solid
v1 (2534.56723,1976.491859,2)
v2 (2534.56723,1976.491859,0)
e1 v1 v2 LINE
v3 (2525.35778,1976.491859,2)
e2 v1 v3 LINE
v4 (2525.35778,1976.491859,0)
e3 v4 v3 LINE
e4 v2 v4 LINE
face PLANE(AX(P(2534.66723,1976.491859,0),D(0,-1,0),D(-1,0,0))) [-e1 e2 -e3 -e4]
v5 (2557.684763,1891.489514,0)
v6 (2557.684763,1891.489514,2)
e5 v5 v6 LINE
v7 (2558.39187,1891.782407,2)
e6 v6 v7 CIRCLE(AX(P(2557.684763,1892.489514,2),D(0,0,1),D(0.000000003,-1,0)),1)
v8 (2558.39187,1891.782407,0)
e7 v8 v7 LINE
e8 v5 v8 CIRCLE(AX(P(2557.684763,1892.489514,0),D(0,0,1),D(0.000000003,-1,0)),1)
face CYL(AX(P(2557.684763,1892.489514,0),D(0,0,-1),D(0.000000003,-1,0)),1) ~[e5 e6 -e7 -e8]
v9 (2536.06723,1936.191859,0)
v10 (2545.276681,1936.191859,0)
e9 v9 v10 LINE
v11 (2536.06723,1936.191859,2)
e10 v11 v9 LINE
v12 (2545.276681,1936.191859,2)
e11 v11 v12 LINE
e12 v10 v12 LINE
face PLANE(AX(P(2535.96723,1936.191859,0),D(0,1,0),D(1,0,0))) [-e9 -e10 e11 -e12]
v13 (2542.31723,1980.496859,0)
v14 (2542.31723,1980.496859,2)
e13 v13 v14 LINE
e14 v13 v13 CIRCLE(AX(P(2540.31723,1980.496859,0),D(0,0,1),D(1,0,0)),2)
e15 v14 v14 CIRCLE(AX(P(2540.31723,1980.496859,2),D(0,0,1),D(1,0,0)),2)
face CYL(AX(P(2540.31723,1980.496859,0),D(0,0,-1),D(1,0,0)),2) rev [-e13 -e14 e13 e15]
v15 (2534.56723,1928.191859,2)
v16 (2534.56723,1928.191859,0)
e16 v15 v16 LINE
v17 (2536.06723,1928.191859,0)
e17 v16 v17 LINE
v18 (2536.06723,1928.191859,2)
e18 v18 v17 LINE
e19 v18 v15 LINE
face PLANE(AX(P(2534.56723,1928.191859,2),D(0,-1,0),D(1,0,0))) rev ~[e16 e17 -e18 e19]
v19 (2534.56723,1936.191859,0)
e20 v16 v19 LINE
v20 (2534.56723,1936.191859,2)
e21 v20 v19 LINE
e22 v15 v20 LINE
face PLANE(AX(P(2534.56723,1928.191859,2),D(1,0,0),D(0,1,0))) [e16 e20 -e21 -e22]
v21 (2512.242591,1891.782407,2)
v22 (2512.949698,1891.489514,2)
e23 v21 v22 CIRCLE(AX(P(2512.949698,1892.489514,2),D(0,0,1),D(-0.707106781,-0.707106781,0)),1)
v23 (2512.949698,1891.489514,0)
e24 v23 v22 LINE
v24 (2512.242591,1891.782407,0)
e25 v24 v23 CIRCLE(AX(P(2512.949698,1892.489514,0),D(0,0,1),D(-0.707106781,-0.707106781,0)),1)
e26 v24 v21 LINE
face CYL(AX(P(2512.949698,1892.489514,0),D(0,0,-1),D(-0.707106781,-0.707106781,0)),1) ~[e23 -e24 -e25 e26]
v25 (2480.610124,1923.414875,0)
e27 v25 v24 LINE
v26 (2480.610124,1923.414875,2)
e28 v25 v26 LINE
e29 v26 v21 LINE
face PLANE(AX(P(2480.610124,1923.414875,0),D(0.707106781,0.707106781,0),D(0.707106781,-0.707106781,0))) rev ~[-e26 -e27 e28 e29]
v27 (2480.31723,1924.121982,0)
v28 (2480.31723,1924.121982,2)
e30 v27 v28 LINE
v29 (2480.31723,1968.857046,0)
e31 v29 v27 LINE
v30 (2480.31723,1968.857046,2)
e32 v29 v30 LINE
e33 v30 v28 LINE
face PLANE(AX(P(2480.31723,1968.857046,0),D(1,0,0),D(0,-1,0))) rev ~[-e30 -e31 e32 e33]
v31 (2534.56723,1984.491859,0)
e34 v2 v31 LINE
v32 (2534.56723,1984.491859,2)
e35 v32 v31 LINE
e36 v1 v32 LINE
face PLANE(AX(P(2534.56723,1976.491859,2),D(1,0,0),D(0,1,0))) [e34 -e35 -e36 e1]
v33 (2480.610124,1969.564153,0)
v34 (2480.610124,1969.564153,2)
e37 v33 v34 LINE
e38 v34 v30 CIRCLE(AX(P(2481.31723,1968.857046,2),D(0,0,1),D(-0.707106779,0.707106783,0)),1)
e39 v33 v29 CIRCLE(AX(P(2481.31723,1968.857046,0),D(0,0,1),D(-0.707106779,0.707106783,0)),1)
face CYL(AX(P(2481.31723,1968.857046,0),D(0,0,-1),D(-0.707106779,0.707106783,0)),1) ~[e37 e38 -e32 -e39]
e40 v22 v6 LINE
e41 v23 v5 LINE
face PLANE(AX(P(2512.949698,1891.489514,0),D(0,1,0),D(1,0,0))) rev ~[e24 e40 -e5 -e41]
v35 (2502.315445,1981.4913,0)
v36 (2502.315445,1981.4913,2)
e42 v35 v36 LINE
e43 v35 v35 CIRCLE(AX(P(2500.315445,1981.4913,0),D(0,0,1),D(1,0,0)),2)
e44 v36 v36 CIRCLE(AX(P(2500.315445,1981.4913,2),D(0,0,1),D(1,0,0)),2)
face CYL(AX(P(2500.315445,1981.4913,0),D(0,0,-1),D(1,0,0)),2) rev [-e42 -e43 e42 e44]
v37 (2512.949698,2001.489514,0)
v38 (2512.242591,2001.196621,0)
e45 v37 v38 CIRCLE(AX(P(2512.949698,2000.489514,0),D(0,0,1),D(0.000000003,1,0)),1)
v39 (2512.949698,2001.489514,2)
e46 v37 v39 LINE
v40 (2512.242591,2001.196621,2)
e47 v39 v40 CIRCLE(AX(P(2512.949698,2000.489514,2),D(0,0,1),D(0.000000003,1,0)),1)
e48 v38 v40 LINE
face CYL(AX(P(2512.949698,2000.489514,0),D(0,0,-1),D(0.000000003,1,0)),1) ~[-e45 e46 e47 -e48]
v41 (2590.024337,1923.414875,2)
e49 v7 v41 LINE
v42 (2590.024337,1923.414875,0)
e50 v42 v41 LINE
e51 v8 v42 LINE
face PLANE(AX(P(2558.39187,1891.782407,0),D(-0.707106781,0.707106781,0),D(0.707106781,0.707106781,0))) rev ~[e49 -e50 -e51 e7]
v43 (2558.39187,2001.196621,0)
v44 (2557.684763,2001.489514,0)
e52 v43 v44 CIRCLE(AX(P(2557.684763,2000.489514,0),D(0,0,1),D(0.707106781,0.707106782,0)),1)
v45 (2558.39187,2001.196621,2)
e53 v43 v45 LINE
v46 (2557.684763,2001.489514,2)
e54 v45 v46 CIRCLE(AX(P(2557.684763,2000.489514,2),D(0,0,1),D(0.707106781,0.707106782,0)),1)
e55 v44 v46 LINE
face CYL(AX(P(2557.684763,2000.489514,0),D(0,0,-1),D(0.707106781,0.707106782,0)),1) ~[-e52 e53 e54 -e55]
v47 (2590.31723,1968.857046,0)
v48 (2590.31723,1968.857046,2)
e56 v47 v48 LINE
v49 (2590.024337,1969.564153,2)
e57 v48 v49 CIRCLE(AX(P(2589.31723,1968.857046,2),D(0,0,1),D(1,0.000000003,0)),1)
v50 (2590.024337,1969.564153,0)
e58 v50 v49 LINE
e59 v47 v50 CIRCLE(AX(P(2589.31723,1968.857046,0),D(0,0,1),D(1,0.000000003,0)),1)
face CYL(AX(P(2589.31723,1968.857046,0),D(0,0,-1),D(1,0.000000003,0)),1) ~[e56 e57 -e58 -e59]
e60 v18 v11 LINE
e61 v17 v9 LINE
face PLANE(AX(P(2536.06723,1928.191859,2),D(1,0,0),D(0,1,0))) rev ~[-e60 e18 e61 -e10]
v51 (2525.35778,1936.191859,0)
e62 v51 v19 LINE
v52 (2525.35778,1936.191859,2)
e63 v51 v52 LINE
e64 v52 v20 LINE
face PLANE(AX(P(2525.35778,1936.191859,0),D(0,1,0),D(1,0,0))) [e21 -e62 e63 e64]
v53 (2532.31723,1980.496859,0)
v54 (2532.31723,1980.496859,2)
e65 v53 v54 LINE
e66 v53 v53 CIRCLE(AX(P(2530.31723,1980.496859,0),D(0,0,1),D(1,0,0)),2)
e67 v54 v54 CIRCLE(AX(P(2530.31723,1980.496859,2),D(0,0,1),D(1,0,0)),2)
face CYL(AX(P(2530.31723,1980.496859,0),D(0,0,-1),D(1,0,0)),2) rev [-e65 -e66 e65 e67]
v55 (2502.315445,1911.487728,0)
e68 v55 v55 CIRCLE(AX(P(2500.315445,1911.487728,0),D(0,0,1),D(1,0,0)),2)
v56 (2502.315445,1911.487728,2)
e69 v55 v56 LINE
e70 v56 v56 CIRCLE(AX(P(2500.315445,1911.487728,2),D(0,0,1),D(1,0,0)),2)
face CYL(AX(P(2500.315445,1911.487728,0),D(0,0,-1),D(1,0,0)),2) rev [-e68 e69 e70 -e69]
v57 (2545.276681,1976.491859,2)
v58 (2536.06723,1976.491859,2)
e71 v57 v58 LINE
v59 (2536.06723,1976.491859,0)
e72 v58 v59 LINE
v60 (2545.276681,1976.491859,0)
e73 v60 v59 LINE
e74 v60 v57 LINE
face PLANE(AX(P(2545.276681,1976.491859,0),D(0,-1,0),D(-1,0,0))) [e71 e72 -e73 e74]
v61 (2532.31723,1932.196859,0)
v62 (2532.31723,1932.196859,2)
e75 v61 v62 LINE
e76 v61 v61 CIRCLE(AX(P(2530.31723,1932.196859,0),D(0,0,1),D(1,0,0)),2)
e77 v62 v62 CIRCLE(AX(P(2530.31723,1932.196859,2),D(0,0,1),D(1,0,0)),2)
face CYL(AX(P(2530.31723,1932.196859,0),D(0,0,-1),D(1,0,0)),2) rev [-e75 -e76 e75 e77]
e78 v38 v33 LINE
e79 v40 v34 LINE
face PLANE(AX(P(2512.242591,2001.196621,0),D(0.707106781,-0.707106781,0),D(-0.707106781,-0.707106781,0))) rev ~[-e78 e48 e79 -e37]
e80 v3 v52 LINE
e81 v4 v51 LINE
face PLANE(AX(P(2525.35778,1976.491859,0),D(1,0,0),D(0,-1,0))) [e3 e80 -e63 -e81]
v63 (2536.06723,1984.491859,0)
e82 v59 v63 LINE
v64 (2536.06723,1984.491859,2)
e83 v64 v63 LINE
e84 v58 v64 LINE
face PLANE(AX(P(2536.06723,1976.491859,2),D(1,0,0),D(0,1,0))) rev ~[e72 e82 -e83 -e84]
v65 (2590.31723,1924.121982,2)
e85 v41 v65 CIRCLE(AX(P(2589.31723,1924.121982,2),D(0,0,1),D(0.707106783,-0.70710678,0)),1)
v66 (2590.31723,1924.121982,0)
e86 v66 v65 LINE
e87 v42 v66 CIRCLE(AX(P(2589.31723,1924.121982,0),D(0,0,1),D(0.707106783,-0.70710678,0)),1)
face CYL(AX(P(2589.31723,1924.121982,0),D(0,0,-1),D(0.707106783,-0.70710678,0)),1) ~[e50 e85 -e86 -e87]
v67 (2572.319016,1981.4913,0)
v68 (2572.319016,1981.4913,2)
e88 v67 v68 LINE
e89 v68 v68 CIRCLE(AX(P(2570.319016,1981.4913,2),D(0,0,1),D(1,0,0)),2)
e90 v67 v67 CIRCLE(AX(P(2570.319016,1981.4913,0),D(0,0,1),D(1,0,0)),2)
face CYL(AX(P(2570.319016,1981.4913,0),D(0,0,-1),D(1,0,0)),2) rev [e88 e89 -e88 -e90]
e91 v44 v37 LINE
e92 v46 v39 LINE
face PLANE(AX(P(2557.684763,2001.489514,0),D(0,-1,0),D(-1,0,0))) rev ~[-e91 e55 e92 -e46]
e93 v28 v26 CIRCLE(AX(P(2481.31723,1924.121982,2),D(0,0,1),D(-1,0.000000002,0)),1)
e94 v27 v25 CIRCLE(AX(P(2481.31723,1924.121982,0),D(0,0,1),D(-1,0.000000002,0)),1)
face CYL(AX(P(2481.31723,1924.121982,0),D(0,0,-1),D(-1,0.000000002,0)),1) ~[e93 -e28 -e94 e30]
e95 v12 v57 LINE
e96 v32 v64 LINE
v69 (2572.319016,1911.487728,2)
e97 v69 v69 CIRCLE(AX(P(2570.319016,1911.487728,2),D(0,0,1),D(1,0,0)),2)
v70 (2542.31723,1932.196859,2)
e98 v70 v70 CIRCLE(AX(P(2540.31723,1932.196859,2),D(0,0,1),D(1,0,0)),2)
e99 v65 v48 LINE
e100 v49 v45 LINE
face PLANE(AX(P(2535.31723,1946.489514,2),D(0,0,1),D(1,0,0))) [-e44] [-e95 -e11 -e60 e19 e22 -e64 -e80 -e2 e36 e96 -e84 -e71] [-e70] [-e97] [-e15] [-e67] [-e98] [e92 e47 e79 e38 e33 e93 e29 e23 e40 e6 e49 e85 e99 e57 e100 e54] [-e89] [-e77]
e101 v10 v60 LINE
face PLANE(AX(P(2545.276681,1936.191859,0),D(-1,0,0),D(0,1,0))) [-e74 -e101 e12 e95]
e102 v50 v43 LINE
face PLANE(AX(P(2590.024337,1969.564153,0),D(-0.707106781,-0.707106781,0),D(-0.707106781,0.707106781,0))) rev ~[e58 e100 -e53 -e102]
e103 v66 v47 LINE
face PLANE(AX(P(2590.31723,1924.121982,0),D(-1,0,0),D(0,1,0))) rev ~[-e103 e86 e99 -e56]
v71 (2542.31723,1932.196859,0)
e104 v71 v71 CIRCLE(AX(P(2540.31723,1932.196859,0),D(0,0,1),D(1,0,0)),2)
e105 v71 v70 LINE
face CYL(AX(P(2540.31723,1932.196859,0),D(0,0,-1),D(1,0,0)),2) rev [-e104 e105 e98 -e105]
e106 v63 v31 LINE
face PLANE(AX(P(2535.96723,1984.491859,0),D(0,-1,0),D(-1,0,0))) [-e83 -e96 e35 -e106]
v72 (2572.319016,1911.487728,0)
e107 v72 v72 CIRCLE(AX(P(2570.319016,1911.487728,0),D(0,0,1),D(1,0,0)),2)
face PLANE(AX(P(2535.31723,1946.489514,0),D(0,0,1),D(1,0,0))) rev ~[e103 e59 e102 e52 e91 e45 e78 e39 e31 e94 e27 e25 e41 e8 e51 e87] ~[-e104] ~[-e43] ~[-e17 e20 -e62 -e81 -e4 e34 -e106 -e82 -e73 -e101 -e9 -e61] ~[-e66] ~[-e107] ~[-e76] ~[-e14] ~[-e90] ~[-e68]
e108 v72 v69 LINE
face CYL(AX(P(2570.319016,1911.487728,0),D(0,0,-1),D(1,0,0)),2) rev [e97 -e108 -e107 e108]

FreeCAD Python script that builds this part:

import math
import FreeCAD as App
import Part
import Sketcher

V = App.Vector
Q = App.Units.Quantity


def add_polygon(sketch, points):
    """Adds a closed chain of lines whose ends are joined by coincident constraints."""
    first, n = sketch.GeometryCount, len(points)
    for a, b in zip(points, points[1:] + points[:1]):
        sketch.addGeometry(Part.LineSegment(App.Vector(*a, 0), App.Vector(*b, 0)), False)
    for i in range(n):
        sketch.addConstraint(Sketcher.Constraint("Coincident", first + i, 2, first + (i + 1) % n, 1))

doc = App.newDocument("Part")
body = doc.addObject("PartDesign::Body", "Body")

# Sketch on XY plane
sketch1 = doc.addObject("Sketcher::SketchObject", "Sketch")
body.addObject(sketch1)
sketch1.AttachmentSupport = (doc.XY_Plane, [""])
sketch1.MapMode = "FlatFace"
sketch1.addGeometry(Part.LineSegment(V(2557.7, 2001.5, 0), V(2512.9, 2001.5, 0)), False)  # 0
sketch1.addGeometry(Part.ArcOfCircle(Part.Circle(V(2512.9, 2000.5, 0), V(0, 0, 1), 1), math.radians(90), math.radians(135)), False)  # 1
sketch1.addGeometry(Part.LineSegment(V(2512.2, 2001.2, 0), V(2480.6, 1969.6, 0)), False)  # 2
sketch1.addGeometry(Part.ArcOfCircle(Part.Circle(V(2481.3, 1968.9, 0), V(0, 0, 1), 1), math.radians(135), math.radians(180)), False)  # 3
sketch1.addGeometry(Part.LineSegment(V(2480.3, 1968.9, 0), V(2480.3, 1924.1, 0)), False)  # 4
sketch1.addGeometry(Part.ArcOfCircle(Part.Circle(V(2481.3, 1924.1, 0), V(0, 0, 1), 1), math.radians(180), math.radians(225)), False)  # 5
sketch1.addGeometry(Part.LineSegment(V(2480.6, 1923.4, 0), V(2512.2, 1891.8, 0)), False)  # 6
sketch1.addGeometry(Part.ArcOfCircle(Part.Circle(V(2512.9, 1892.5, 0), V(0, 0, 1), 1), math.radians(-135), math.radians(-90)), False)  # 7
sketch1.addGeometry(Part.LineSegment(V(2512.9, 1891.5, 0), V(2557.7, 1891.5, 0)), False)  # 8
sketch1.addGeometry(Part.ArcOfCircle(Part.Circle(V(2557.7, 1892.5, 0), V(0, 0, 1), 1), math.radians(-90), math.radians(-45)), False)  # 9
sketch1.addGeometry(Part.LineSegment(V(2558.4, 1891.8, 0), V(2590, 1923.4, 0)), False)  # 10
sketch1.addGeometry(Part.ArcOfCircle(Part.Circle(V(2589.3, 1924.1, 0), V(0, 0, 1), 1), math.radians(-45), math.radians(0)), False)  # 11
sketch1.addGeometry(Part.LineSegment(V(2590.3, 1924.1, 0), V(2590.3, 1968.9, 0)), False)  # 12
sketch1.addGeometry(Part.ArcOfCircle(Part.Circle(V(2589.3, 1968.9, 0), V(0, 0, 1), 1), math.radians(0), math.radians(45)), False)  # 13
sketch1.addGeometry(Part.LineSegment(V(2590, 1969.6, 0), V(2558.4, 2001.2, 0)), False)  # 14
sketch1.addGeometry(Part.ArcOfCircle(Part.Circle(V(2557.7, 2000.5, 0), V(0, 0, 1), 1), math.radians(45), math.radians(90)), False)  # 15
sketch1.addGeometry(Part.Circle(V(2500.3, 1911.5, 0), V(0, 0, 1), 2), False)  # 16
sketch1.addGeometry(Part.Circle(V(2530.3, 1932.2, 0), V(0, 0, 1), 2), False)  # 17
sketch1.addGeometry(Part.Circle(V(2570.3, 1911.5, 0), V(0, 0, 1), 2), False)  # 18
sketch1.addGeometry(Part.Circle(V(2540.3, 1932.2, 0), V(0, 0, 1), 2), False)  # 19
sketch1.addGeometry(Part.Circle(V(2500.3, 1981.5, 0), V(0, 0, 1), 2), False)  # 20
sketch1.addGeometry(Part.Circle(V(2530.3, 1980.5, 0), V(0, 0, 1), 2), False)  # 21
add_polygon(sketch1, [(2536, 1984.5), (2536, 1976.5), (2545.3, 1976.5), (2545.3, 1936.2), (2536, 1936.2), (2536, 1928.2), (2534.7, 1928.2), (2534.7, 1936.2), (2525.4, 1936.2), (2525.4, 1976.5), (2534.7, 1976.5), (2534.7, 1984.5)])  # lines 22-33
sketch1.addGeometry(Part.Circle(V(2540.3, 1980.5, 0), V(0, 0, 1), 2), False)  # 34
sketch1.addGeometry(Part.Circle(V(2570.3, 1981.5, 0), V(0, 0, 1), 2), False)  # 35
sketch1.addConstraint([
    Sketcher.Constraint("Tangent", 0, 2, 1, 1),
    Sketcher.Constraint("Tangent", 1, 2, 2, 1),
    Sketcher.Constraint("Tangent", 2, 2, 3, 1),
    Sketcher.Constraint("Tangent", 3, 2, 4, 1),
    Sketcher.Constraint("Tangent", 4, 2, 5, 1),
    Sketcher.Constraint("Tangent", 5, 2, 6, 1),
    Sketcher.Constraint("Tangent", 6, 2, 7, 1),
    Sketcher.Constraint("Tangent", 7, 2, 8, 1),
    Sketcher.Constraint("Tangent", 8, 2, 9, 1),
    Sketcher.Constraint("Tangent", 9, 2, 10, 1),
    Sketcher.Constraint("Tangent", 10, 2, 11, 1),
    Sketcher.Constraint("Tangent", 11, 2, 12, 1),
    Sketcher.Constraint("Tangent", 12, 2, 13, 1),
    Sketcher.Constraint("Tangent", 13, 2, 14, 1),
    Sketcher.Constraint("Tangent", 14, 2, 15, 1),
    Sketcher.Constraint("Tangent", 15, 2, 0, 1),
    Sketcher.Constraint("Horizontal", 0),
    Sketcher.Constraint("Vertical", 4),
    Sketcher.Constraint("Horizontal", 8),
    Sketcher.Constraint("Vertical", 12),
    Sketcher.Constraint("Vertical", 22),
    Sketcher.Constraint("Horizontal", 23),
    Sketcher.Constraint("Vertical", 24),
    Sketcher.Constraint("Horizontal", 25),
    Sketcher.Constraint("Vertical", 26),
    Sketcher.Constraint("Horizontal", 27),
    Sketcher.Constraint("Vertical", 28),
    Sketcher.Constraint("Horizontal", 29),
    Sketcher.Constraint("Vertical", 30),
    Sketcher.Constraint("Horizontal", 31),
    Sketcher.Constraint("Vertical", 32),
    Sketcher.Constraint("Horizontal", 33),
    Sketcher.Constraint("Equal", 1, 3),
    Sketcher.Constraint("Equal", 3, 5),
    Sketcher.Constraint("Equal", 5, 7),
    Sketcher.Constraint("Equal", 7, 9),
    Sketcher.Constraint("Equal", 9, 11),
    Sketcher.Constraint("Equal", 11, 13),
    Sketcher.Constraint("Equal", 13, 15),
    Sketcher.Constraint("Equal", 16, 17),
    Sketcher.Constraint("Equal", 17, 18),
    Sketcher.Constraint("Equal", 18, 19),
    Sketcher.Constraint("Equal", 19, 20),
    Sketcher.Constraint("Equal", 20, 21),
    Sketcher.Constraint("Equal", 21, 34),
    Sketcher.Constraint("Equal", 34, 35),
    Sketcher.Constraint("Perpendicular", 2, 6),
    Sketcher.Constraint("Perpendicular", 6, 10),
    Sketcher.Constraint("Perpendicular", 10, 14),
    Sketcher.Constraint("Horizontal", 5, 3, 11, 3),
    Sketcher.Constraint("Horizontal", 3, 3, 13, 3),
    Sketcher.Constraint("Horizontal", 16, 3, 18, 3),
    Sketcher.Constraint("Horizontal", 17, 3, 19, 3),
    Sketcher.Constraint("Horizontal", 21, 3, 34, 3),
    Sketcher.Constraint("Horizontal", 20, 3, 35, 3),
    Sketcher.Constraint("Horizontal", 6, 2, 9, 2),
    Sketcher.Constraint("Horizontal", 25, 2, 28, 2),
    Sketcher.Constraint("Horizontal", 23, 2, 30, 2),
    Sketcher.Constraint("Vertical", 1, 3, 7, 3),
    Sketcher.Constraint("Vertical", 16, 3, 20, 3),
    Sketcher.Constraint("Vertical", 17, 3, 21, 3),
    Sketcher.Constraint("Vertical", 19, 3, 34, 3),
    Sketcher.Constraint("Vertical", 18, 3, 35, 3),
    Sketcher.Constraint("Vertical", 22, 2, 25, 2),
    Sketcher.Constraint("Vertical", 28, 2, 31, 2),
    Sketcher.Constraint("Equal", 25, 29),
    Sketcher.Constraint("Equal", 8, 4),
    Sketcher.Constraint("Equal", 22, 26),
    Sketcher.Constraint("Diameter", 16, Q("4 mm")),
    Sketcher.Constraint("Radius", 1, Q("1 mm")),
    Sketcher.Constraint("DistanceY", 22, 2, 22, 1, Q("8 mm")),
    Sketcher.Constraint("DistanceX", 27, 2, 27, 1, Q("1.3 mm")),
    Sketcher.Constraint("DistanceY", 24, 2, 24, 1, Q("40.3 mm")),
    Sketcher.Constraint("DistanceY", 7, 3, 1, 3, Q("108 mm")),
    Sketcher.Constraint("DistanceX", 5, 3, 17, 3, Q("49 mm")),
    Sketcher.Constraint("DistanceX", 17, 3, 19, 3, Q("10 mm")),
    Sketcher.Constraint("DistanceY", 17, 3, 21, 3, Q("48.3 mm")),
    Sketcher.Constraint("DistanceX", 22, 2, 34, 3, Q("4.35 mm")),
    Sketcher.Constraint("DistanceY", 22, 2, 34, 3, Q("4.005 mm")),
    Sketcher.Constraint("DistanceX", 23, 1, 23, 2, Q("9.309451 mm")),
    Sketcher.Constraint("DistanceY", -1, 1, 20, 3, Q("1981.4913 mm")),
    Sketcher.Constraint("DistanceX", 0, 2, 0, 1, Q("44.735065 mm")),
    Sketcher.Constraint("DistanceX", -1, 1, 3, 3, Q("2481.31723 mm")),
    Sketcher.Constraint("DistanceY", -1, 1, 5, 3, Q("1924.121982 mm")),
    Sketcher.Constraint("DistanceY", -1, 1, 16, 3, Q("1911.487728 mm")),
    Sketcher.Constraint("DistanceY", -1, 1, 17, 3, Q("1932.196859 mm")),
    Sketcher.Constraint("DistanceX", 16, 3, 9, 3, Q("57.369318 mm")),
    Sketcher.Constraint("DistanceX", 7, 3, 18, 3, Q("57.369318 mm")),
])
pad1 = doc.addObject("PartDesign::Pad", "Pad")
body.addObject(pad1)
pad1.Profile = sketch1
pad1.Length = 2

# Sketch on XY plane
sketch2 = doc.addObject("Sketcher::SketchObject", "Sketch001")
body.addObject(sketch2)
sketch2.AttachmentSupport = (doc.XY_Plane, [""])
sketch2.MapMode = "FlatFace"
sketch2.AttachmentOffset = App.Placement(V(0, 0, 2), App.Rotation())
add_polygon(sketch2, [(2535.96723, 1936.191859), (2535.96723, 1928.191859), (2536.06723, 1928.191859), (2536.06723, 1936.191859)])  # lines 0-3
add_polygon(sketch2, [(2534.56723, 1936.191859), (2534.56723, 1928.191859), (2534.66723, 1928.191859), (2534.66723, 1936.191859)])  # lines 4-7
sketch2.addConstraint([
    Sketcher.Constraint("Vertical", 0),
    Sketcher.Constraint("Horizontal", 1),
    Sketcher.Constraint("Vertical", 2),
    Sketcher.Constraint("Horizontal", 3),
    Sketcher.Constraint("Vertical", 4),
    Sketcher.Constraint("Horizontal", 5),
    Sketcher.Constraint("Vertical", 6),
    Sketcher.Constraint("Horizontal", 7),
    Sketcher.Constraint("Horizontal", 1, 2, 4, 2),
    Sketcher.Constraint("Horizontal", 3, 2, 6, 2),
    Sketcher.Constraint("Equal", 3, 5),
    Sketcher.Constraint("DistanceY", 0, 2, 0, 1, Q("8 mm")),
    Sketcher.Constraint("DistanceX", 1, 1, 1, 2, Q("0.1 mm")),
    Sketcher.Constraint("DistanceX", 4, 2, 0, 2, Q("1.4 mm")),
    Sketcher.Constraint("DistanceX", -1, 1, 0, 2, Q("2535.96723 mm")),
    Sketcher.Constraint("DistanceY", -1, 1, 0, 2, Q("1928.191859 mm")),
])
pocket1 = doc.addObject("PartDesign::Pocket", "Pocket")
body.addObject(pocket1)
pocket1.Profile = sketch2
pocket1.Length = 2

# Sketch on XY plane
sketch3 = doc.addObject("Sketcher::SketchObject", "Sketch002")
body.addObject(sketch3)
sketch3.AttachmentSupport = (doc.XY_Plane, [""])
sketch3.MapMode = "FlatFace"
sketch3.AttachmentOffset = App.Placement(V(0, 0, 2), App.Rotation())
add_polygon(sketch3, [(2535.96723, 1984.491859), (2535.96723, 1976.491859), (2536.06723, 1976.491859), (2536.06723, 1984.491859)])  # lines 0-3
add_polygon(sketch3, [(2534.56723, 1984.491859), (2534.56723, 1976.491859), (2534.66723, 1976.491859), (2534.66723, 1984.491859)])  # lines 4-7
sketch3.addConstraint([
    Sketcher.Constraint("Vertical", 0),
    Sketcher.Constraint("Horizontal", 1),
    Sketcher.Constraint("Vertical", 2),
    Sketcher.Constraint("Horizontal", 3),
    Sketcher.Constraint("Vertical", 4),
    Sketcher.Constraint("Horizontal", 5),
    Sketcher.Constraint("Vertical", 6),
    Sketcher.Constraint("Horizontal", 7),
    Sketcher.Constraint("Horizontal", 1, 2, 4, 2),
    Sketcher.Constraint("Horizontal", 3, 2, 6, 2),
    Sketcher.Constraint("Equal", 3, 5),
    Sketcher.Constraint("DistanceY", 0, 2, 0, 1, Q("8 mm")),
    Sketcher.Constraint("DistanceX", 1, 1, 1, 2, Q("0.1 mm")),
    Sketcher.Constraint("DistanceX", 4, 2, 0, 2, Q("1.4 mm")),
    Sketcher.Constraint("DistanceX", -1, 1, 0, 2, Q("2535.96723 mm")),
    Sketcher.Constraint("DistanceY", -1, 1, 0, 2, Q("1976.491859 mm")),
])
pocket2 = doc.addObject("PartDesign::Pocket", "Pocket001")
body.addObject(pocket2)
pocket2.Profile = sketch3
pocket2.Length = 2

doc.recompute()
